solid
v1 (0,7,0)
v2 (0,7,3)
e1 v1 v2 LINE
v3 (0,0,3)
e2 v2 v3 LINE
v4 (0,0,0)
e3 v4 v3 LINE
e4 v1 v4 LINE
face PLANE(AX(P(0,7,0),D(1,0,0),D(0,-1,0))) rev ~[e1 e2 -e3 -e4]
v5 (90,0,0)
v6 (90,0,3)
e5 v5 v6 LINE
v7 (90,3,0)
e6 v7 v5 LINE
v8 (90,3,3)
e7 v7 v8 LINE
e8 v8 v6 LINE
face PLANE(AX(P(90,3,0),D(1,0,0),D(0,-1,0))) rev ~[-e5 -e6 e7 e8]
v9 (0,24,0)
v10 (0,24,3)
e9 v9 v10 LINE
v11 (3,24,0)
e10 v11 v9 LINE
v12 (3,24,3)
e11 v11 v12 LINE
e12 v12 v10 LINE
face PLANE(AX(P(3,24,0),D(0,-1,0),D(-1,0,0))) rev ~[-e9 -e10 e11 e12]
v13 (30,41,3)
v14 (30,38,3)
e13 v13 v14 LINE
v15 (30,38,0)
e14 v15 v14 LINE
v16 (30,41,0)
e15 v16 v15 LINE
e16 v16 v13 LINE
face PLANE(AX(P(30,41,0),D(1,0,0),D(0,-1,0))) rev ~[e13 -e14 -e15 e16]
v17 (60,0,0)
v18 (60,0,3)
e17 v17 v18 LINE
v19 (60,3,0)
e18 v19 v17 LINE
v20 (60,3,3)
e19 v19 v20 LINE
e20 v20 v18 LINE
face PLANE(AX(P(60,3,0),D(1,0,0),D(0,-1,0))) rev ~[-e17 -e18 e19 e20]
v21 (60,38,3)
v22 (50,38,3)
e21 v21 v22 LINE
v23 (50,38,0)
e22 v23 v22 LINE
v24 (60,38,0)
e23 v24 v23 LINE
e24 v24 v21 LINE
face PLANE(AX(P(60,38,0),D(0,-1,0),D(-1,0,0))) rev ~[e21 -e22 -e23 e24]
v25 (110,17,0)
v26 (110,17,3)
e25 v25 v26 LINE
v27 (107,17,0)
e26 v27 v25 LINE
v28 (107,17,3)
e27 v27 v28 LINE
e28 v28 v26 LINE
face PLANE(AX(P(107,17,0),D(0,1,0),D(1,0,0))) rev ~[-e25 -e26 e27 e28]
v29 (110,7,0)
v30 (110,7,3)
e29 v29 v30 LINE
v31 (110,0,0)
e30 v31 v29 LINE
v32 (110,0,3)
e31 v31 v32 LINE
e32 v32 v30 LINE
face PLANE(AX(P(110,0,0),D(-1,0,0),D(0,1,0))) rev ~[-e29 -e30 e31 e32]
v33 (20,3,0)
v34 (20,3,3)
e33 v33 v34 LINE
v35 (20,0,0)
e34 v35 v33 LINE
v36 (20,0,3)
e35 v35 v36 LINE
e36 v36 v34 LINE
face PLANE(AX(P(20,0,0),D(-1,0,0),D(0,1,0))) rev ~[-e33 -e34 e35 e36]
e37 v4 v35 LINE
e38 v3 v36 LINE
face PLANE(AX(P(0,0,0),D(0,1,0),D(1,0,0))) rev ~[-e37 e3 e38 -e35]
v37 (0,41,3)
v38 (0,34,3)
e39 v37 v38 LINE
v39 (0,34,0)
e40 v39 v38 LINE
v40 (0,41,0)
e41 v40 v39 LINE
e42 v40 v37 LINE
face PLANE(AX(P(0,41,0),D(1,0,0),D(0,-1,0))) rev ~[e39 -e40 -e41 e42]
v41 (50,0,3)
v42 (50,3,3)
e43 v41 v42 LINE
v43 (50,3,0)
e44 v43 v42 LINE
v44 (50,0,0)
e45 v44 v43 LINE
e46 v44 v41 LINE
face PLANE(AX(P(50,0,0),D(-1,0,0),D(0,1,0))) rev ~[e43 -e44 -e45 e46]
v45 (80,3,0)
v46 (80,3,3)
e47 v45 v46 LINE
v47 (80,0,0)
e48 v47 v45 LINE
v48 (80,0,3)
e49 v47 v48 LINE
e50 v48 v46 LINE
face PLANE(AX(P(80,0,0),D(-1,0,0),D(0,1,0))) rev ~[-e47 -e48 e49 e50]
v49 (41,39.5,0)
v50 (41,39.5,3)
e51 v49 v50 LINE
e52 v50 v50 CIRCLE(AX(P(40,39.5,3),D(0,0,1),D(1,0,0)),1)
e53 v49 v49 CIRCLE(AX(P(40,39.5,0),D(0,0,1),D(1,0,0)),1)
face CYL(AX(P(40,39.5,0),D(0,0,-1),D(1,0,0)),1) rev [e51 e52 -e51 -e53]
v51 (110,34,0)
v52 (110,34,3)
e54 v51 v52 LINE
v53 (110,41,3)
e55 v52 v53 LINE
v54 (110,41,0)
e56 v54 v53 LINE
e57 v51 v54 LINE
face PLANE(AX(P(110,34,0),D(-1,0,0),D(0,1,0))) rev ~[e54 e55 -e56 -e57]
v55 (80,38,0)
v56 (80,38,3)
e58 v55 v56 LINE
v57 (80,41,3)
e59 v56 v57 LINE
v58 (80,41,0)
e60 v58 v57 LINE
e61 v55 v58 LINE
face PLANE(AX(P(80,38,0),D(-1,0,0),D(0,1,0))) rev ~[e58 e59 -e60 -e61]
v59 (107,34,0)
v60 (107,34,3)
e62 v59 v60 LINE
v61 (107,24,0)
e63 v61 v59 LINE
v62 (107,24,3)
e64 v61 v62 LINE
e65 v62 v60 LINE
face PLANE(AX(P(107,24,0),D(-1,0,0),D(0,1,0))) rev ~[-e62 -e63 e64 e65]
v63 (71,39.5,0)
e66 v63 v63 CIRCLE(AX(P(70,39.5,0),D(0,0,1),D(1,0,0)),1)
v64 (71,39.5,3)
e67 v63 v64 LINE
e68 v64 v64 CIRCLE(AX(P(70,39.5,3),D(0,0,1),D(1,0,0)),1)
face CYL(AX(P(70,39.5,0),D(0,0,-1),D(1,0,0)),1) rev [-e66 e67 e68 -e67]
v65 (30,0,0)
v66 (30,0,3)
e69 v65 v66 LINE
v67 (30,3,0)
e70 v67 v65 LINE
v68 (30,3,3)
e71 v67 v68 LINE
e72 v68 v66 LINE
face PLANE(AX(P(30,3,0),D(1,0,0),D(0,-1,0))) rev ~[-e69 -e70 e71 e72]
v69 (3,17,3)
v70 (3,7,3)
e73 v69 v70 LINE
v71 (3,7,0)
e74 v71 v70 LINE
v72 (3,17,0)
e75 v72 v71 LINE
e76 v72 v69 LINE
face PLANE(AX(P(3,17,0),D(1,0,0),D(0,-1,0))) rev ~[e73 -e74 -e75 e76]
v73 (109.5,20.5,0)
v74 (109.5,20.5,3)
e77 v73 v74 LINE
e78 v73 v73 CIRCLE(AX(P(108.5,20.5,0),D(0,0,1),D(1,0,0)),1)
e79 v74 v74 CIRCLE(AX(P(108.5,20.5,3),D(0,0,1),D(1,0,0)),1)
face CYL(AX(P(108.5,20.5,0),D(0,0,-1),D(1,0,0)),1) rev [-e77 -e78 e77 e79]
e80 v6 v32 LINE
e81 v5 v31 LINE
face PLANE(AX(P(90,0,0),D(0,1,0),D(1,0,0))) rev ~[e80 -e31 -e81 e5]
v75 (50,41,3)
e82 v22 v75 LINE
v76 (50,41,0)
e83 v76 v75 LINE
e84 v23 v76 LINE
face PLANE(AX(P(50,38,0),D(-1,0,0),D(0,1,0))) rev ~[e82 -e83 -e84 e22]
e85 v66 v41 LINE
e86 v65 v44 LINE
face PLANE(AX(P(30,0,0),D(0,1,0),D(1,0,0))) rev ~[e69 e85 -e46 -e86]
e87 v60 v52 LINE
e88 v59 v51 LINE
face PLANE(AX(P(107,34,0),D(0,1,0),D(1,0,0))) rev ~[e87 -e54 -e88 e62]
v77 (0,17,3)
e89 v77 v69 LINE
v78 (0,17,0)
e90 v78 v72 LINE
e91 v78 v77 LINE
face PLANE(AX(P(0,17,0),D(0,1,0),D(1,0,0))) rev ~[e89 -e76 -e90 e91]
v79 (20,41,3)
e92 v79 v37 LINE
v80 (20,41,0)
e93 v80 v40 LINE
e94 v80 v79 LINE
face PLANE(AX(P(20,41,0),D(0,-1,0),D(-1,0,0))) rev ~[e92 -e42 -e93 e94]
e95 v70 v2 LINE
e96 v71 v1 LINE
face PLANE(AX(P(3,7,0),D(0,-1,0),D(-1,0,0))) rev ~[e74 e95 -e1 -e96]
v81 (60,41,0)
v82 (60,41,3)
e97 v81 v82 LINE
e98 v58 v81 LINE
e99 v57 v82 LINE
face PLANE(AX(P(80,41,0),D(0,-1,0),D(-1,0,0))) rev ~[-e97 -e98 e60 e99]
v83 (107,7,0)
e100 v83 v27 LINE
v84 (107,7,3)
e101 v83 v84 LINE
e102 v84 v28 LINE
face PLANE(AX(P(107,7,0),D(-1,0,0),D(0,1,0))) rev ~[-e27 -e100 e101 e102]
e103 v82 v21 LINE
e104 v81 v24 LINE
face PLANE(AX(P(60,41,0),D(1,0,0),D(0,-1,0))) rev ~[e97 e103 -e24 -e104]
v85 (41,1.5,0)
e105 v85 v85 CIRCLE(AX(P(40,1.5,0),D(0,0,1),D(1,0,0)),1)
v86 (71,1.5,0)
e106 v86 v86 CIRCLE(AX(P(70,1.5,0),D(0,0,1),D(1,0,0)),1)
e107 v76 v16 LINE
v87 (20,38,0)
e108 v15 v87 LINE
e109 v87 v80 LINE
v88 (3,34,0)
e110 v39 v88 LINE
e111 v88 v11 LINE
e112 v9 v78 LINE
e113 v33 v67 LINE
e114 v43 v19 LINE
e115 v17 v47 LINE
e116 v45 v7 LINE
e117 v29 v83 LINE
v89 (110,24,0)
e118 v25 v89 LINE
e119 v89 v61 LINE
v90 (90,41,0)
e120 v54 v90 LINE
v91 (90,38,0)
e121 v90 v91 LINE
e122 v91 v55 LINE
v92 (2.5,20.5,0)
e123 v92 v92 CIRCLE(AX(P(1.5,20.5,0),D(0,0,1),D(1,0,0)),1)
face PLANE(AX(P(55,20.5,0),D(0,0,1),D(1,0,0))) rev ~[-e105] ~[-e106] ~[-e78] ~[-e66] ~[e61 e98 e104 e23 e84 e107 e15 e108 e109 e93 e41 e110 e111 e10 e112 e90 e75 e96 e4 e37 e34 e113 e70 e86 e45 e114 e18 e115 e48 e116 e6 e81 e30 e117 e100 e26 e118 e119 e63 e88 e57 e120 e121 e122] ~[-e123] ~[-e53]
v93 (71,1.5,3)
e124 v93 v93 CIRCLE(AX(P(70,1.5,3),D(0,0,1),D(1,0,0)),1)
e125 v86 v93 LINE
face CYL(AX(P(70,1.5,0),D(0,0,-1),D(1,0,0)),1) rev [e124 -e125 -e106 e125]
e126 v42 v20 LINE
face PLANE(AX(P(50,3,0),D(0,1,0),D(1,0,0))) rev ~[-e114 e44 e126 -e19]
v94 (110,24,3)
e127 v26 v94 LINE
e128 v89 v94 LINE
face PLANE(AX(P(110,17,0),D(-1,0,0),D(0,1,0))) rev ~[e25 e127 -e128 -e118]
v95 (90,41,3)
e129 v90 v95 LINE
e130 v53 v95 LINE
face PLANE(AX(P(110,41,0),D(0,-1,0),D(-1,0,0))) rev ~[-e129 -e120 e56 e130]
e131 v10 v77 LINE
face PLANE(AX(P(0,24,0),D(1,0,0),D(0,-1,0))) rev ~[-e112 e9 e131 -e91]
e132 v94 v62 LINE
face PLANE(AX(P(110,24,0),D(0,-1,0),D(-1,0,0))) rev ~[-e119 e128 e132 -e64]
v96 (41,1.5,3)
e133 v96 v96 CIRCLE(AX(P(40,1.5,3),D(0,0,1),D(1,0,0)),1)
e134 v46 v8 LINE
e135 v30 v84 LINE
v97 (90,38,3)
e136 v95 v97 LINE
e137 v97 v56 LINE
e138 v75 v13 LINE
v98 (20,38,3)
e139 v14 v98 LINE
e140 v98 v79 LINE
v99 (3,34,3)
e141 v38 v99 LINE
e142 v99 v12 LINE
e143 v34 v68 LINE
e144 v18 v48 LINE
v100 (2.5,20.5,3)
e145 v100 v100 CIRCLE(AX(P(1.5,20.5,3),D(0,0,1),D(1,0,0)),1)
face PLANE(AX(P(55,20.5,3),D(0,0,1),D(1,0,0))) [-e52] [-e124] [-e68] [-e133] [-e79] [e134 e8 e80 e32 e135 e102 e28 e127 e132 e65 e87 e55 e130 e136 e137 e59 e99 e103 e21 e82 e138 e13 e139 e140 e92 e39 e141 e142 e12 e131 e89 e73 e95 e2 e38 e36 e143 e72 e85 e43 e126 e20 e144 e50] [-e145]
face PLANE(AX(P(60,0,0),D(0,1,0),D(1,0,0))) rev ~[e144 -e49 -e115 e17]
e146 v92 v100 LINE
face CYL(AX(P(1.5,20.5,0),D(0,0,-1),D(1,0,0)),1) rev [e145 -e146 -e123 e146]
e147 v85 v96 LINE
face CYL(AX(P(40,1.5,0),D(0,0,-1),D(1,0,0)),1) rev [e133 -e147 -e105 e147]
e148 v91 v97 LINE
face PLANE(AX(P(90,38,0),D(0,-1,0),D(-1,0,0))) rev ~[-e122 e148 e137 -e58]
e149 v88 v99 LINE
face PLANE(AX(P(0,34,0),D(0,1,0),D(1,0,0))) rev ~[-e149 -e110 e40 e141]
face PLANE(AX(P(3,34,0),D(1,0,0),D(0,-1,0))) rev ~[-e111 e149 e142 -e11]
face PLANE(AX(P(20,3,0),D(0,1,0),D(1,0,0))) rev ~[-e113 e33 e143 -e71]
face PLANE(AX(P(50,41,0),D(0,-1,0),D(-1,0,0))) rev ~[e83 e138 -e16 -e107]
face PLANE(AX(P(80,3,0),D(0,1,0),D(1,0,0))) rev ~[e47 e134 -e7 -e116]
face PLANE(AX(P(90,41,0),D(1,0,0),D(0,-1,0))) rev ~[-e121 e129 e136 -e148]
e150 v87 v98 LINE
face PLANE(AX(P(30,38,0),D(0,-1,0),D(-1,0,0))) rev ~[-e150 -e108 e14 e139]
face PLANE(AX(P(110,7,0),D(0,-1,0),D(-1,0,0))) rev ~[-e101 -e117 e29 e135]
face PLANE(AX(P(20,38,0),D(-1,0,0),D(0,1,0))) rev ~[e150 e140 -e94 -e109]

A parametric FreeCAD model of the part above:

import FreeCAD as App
import Part
import Sketcher


def add_polygon(sketch, points):
    """Adds a closed chain of lines whose ends are joined by coincident constraints."""
    first, n = sketch.GeometryCount, len(points)
    for a, b in zip(points, points[1:] + points[:1]):
        sketch.addGeometry(Part.LineSegment(App.Vector(*a, 0), App.Vector(*b, 0)), False)
    for i in range(n):
        sketch.addConstraint(Sketcher.Constraint("Coincident", first + i, 2, first + (i + 1) % n, 1))

doc = App.newDocument("Part")
params = doc.addObject("Spreadsheet::Sheet", "Params")
for row, (alias, value) in enumerate([
    ("sketch1_diameter", "2 mm"),
    ("sketch1_width", "20 mm"),
    ("sketch1_width2", "10 mm"),
    ("sketch1_width3", "3 mm"),
    ("sketch1_height", "7 mm"),
    ("pad1_length", "3 mm"),
], start=1):
    params.set(f"A{row}", alias)
    params.set(f"B{row}", "=" + value)
    params.setAlias(f"B{row}", alias)

body = doc.addObject("PartDesign::Body", "Body")

# Sketch on XY plane
sketch1 = doc.addObject("Sketcher::SketchObject", "Sketch")
body.addObject(sketch1)
sketch1.AttachmentSupport = (doc.XY_Plane, [""])
sketch1.MapMode = "FlatFace"
add_polygon(sketch1, [(0, 7), (0, 0), (20, 0), (20, 3), (30, 3), (30, 0), (50, 0), (50, 3), (60, 3), (60, 0), (80, 0), (80, 3), (90, 3), (90, 0), (110, 0), (110, 7), (107, 7), (107, 17), (110, 17), (110, 24), (107, 24), (107, 34), (110, 34), (110, 41), (90, 41), (90, 38), (80, 38), (80, 41), (60, 41), (60, 38), (50, 38), (50, 41), (30, 41), (30, 38), (20, 38), (20, 41), (0, 41), (0, 34), (3, 34), (3, 24), (0, 24), (0, 17), (3, 17), (3, 7)])  # lines 0-43
sketch1.addGeometry(Part.Circle(App.Vector(40, 1.5, 0), App.Vector(0, 0, 1), 1), False)  # 44
sketch1.addGeometry(Part.Circle(App.Vector(70, 1.5, 0), App.Vector(0, 0, 1), 1), False)  # 45
sketch1.addGeometry(Part.Circle(App.Vector(1.5, 20.5, 0), App.Vector(0, 0, 1), 1), False)  # 46
sketch1.addGeometry(Part.Circle(App.Vector(40, 39.5, 0), App.Vector(0, 0, 1), 1), False)  # 47
sketch1.addGeometry(Part.Circle(App.Vector(108.5, 20.5, 0), App.Vector(0, 0, 1), 1), False)  # 48
sketch1.addGeometry(Part.Circle(App.Vector(70, 39.5, 0), App.Vector(0, 0, 1), 1), False)  # 49
sketch1.addConstraint(Sketcher.Constraint("Vertical", 0))
sketch1.addConstraint(Sketcher.Constraint("Horizontal", 1))
sketch1.addConstraint(Sketcher.Constraint("Vertical", 2))
sketch1.addConstraint(Sketcher.Constraint("Horizontal", 3))
sketch1.addConstraint(Sketcher.Constraint("Vertical", 4))
sketch1.addConstraint(Sketcher.Constraint("Horizontal", 5))
sketch1.addConstraint(Sketcher.Constraint("Vertical", 6))
sketch1.addConstraint(Sketcher.Constraint("Horizontal", 7))
sketch1.addConstraint(Sketcher.Constraint("Vertical", 8))
sketch1.addConstraint(Sketcher.Constraint("Horizontal", 9))
sketch1.addConstraint(Sketcher.Constraint("Vertical", 10))
sketch1.addConstraint(Sketcher.Constraint("Horizontal", 11))
sketch1.addConstraint(Sketcher.Constraint("Vertical", 12))
sketch1.addConstraint(Sketcher.Constraint("Horizontal", 13))
sketch1.addConstraint(Sketcher.Constraint("Vertical", 14))
sketch1.addConstraint(Sketcher.Constraint("Horizontal", 15))
sketch1.addConstraint(Sketcher.Constraint("Vertical", 16))
sketch1.addConstraint(Sketcher.Constraint("Horizontal", 17))
sketch1.addConstraint(Sketcher.Constraint("Vertical", 18))
sketch1.addConstraint(Sketcher.Constraint("Horizontal", 19))
sketch1.addConstraint(Sketcher.Constraint("Vertical", 20))
sketch1.addConstraint(Sketcher.Constraint("Horizontal", 21))
sketch1.addConstraint(Sketcher.Constraint("Vertical", 22))
sketch1.addConstraint(Sketcher.Constraint("Horizontal", 23))
sketch1.addConstraint(Sketcher.Constraint("Vertical", 24))
sketch1.addConstraint(Sketcher.Constraint("Horizontal", 25))
sketch1.addConstraint(Sketcher.Constraint("Vertical", 26))
sketch1.addConstraint(Sketcher.Constraint("Horizontal", 27))
sketch1.addConstraint(Sketcher.Constraint("Vertical", 28))
sketch1.addConstraint(Sketcher.Constraint("Horizontal", 29))
sketch1.addConstraint(Sketcher.Constraint("Vertical", 30))
sketch1.addConstraint(Sketcher.Constraint("Horizontal", 31))
sketch1.addConstraint(Sketcher.Constraint("Vertical", 32))
sketch1.addConstraint(Sketcher.Constraint("Horizontal", 33))
sketch1.addConstraint(Sketcher.Constraint("Vertical", 34))
sketch1.addConstraint(Sketcher.Constraint("Horizontal", 35))
sketch1.addConstraint(Sketcher.Constraint("Vertical", 36))
sketch1.addConstraint(Sketcher.Constraint("Horizontal", 37))
sketch1.addConstraint(Sketcher.Constraint("Vertical", 38))
sketch1.addConstraint(Sketcher.Constraint("Horizontal", 39))
sketch1.addConstraint(Sketcher.Constraint("Vertical", 40))
sketch1.addConstraint(Sketcher.Constraint("Horizontal", 41))
sketch1.addConstraint(Sketcher.Constraint("Vertical", 42))
sketch1.addConstraint(Sketcher.Constraint("Horizontal", 43))
sketch1.addConstraint(Sketcher.Constraint("Coincident", 0, 2, -1, 1))
sketch1.addConstraint(Sketcher.Constraint("Equal", 44, 45))
sketch1.addConstraint(Sketcher.Constraint("Equal", 45, 46))
sketch1.addConstraint(Sketcher.Constraint("Equal", 46, 47))
sketch1.addConstraint(Sketcher.Constraint("Equal", 47, 48))
sketch1.addConstraint(Sketcher.Constraint("Equal", 48, 49))
sketch1.addConstraint(Sketcher.Constraint("PointOnObject", 4, 2, -1))
sketch1.addConstraint(Sketcher.Constraint("PointOnObject", 8, 2, -1))
sketch1.addConstraint(Sketcher.Constraint("PointOnObject", 12, 2, -1))
sketch1.addConstraint(Sketcher.Constraint("PointOnObject", 35, 2, -2))
sketch1.addConstraint(Sketcher.Constraint("PointOnObject", 39, 2, -2))
sketch1.addConstraint(Sketcher.Constraint("Horizontal", 44, 3, 45, 3))
sketch1.addConstraint(Sketcher.Constraint("Horizontal", 46, 3, 48, 3))
sketch1.addConstraint(Sketcher.Constraint("Horizontal", 47, 3, 49, 3))
sketch1.addConstraint(Sketcher.Constraint("Horizontal", 3, 2, 6, 2))
sketch1.addConstraint(Sketcher.Constraint("Horizontal", 7, 2, 10, 2))
sketch1.addConstraint(Sketcher.Constraint("Horizontal", 23, 2, 26, 2))
sketch1.addConstraint(Sketcher.Constraint("Horizontal", 25, 2, 28, 2))
sketch1.addConstraint(Sketcher.Constraint("Horizontal", 27, 2, 30, 2))
sketch1.addConstraint(Sketcher.Constraint("Horizontal", 29, 2, 32, 2))
sketch1.addConstraint(Sketcher.Constraint("Horizontal", 31, 2, 34, 2))
sketch1.addConstraint(Sketcher.Constraint("Horizontal", 21, 2, 36, 2))
sketch1.addConstraint(Sketcher.Constraint("Horizontal", 19, 2, 38, 2))
sketch1.addConstraint(Sketcher.Constraint("Horizontal", 17, 2, 40, 2))
sketch1.addConstraint(Sketcher.Constraint("Horizontal", 15, 2, 42, 2))
sketch1.addConstraint(Sketcher.Constraint("Vertical", 44, 3, 47, 3))
sketch1.addConstraint(Sketcher.Constraint("Vertical", 45, 3, 49, 3))
sketch1.addConstraint(Sketcher.Constraint("Vertical", 14, 2, 17, 2))
sketch1.addConstraint(Sketcher.Constraint("Vertical", 16, 2, 19, 2))
sketch1.addConstraint(Sketcher.Constraint("Vertical", 18, 2, 21, 2))
sketch1.addConstraint(Sketcher.Constraint("Vertical", 12, 2, 23, 2))
sketch1.addConstraint(Sketcher.Constraint("Vertical", 10, 2, 25, 2))
sketch1.addConstraint(Sketcher.Constraint("Vertical", 8, 2, 27, 2))
sketch1.addConstraint(Sketcher.Constraint("Vertical", 6, 2, 29, 2))
sketch1.addConstraint(Sketcher.Constraint("Vertical", 4, 2, 31, 2))
sketch1.addConstraint(Sketcher.Constraint("Vertical", 2, 2, 33, 2))
sketch1.addConstraint(Sketcher.Constraint("Vertical", 38, 2, 41, 2))
sketch1.addConstraint(Sketcher.Constraint("Equal", 1, 5))
sketch1.addConstraint(Sketcher.Constraint("Equal", 3, 7))
sketch1.addConstraint(Sketcher.Constraint("Equal", 5, 9))
sketch1.addConstraint(Sketcher.Constraint("Equal", 7, 11))
sketch1.addConstraint(Sketcher.Constraint("Equal", 9, 13))
sketch1.addConstraint(Sketcher.Constraint("Equal", 21, 37))
sketch1.addConstraint(Sketcher.Constraint("Equal", 43, 2))
sketch1.addConstraint(Sketcher.Constraint("Equal", 33, 16))
sketch1.addConstraint(Sketcher.Constraint("Equal", 14, 18))
sketch1.addConstraint(Sketcher.Constraint("Equal", 16, 20))
sketch1.addConstraint(Sketcher.Constraint("Equal", 18, 22))
sketch1.addConstraint(Sketcher.Constraint("Equal", 12, 24))
sketch1.addConstraint(Sketcher.Constraint("Diameter", 44, 2.0))
sketch1.addConstraint(Sketcher.Constraint("DistanceX", 1, 1, 1, 2, 20.0))
sketch1.addConstraint(Sketcher.Constraint("DistanceX", 3, 1, 3, 2, 10.0))
sketch1.addConstraint(Sketcher.Constraint("DistanceX", 15, 2, 15, 1, 3.0))
sketch1.addConstraint(Sketcher.Constraint("DistanceY", 0, 2, 0, 1, 7.0))
sketch1.addConstraint(Sketcher.Constraint("DistanceX", -1, 1, 44, 3, 40.0))
sketch1.addConstraint(Sketcher.Constraint("DistanceX", -1, 1, 45, 3, 70.0))
sketch1.addConstraint(Sketcher.Constraint("DistanceY", 44, 3, 46, 3, 19.0))
sketch1.addConstraint(Sketcher.Constraint("DistanceY", 44, 3, 47, 3, 38.0))
sketch1.addConstraint(Sketcher.Constraint("DistanceX", 46, 3, 48, 3, 107.0))
sketch1.addConstraint(Sketcher.Constraint("DistanceY", -1, 1, 44, 3, 1.5))
sketch1.addConstraint(Sketcher.Constraint("DistanceX", -1, 1, 46, 3, 1.5))
sketch1.setExpression("Constraints[137]", "Params.sketch1_diameter")
sketch1.setExpression("Constraints[138]", "Params.sketch1_width")
sketch1.setExpression("Constraints[139]", "Params.sketch1_width2")
sketch1.setExpression("Constraints[140]", "Params.sketch1_width3")
sketch1.setExpression("Constraints[141]", "Params.sketch1_height")
pad1 = doc.addObject("PartDesign::Pad", "Pad")
body.addObject(pad1)
pad1.Profile = sketch1
pad1.setExpression("Length", "Params.pad1_length")

doc.recompute()
